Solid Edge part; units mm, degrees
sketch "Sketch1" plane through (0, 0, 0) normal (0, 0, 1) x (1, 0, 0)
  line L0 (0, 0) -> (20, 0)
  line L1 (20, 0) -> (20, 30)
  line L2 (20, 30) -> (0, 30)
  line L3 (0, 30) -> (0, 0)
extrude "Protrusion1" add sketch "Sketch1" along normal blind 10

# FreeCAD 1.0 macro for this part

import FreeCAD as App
import Part
import Sketcher
Q = App.Units.Quantity

doc = App.newDocument("Part")
body = doc.addObject("PartDesign::Body", "Body")

sketch1 = body.newObject("Sketcher::SketchObject", "Sketch")
sketch1.AttachmentSupport = (doc.getObject("XY_Plane"), [""])
sketch1.MapMode = "FlatFace"
sketch1.addGeometry([
    Part.LineSegment(App.Vector(0, 30, 0), App.Vector(0, 0, 0)),
    Part.LineSegment(App.Vector(0, 0, 0), App.Vector(20, 0, 0)),
    Part.LineSegment(App.Vector(20, 0, 0), App.Vector(20, 30, 0)),
    Part.LineSegment(App.Vector(20, 30, 0), App.Vector(0, 30, 0)),
], False)
sketch1.addConstraint([
    Sketcher.Constraint("Coincident", 0, 2, 1, 1),
    Sketcher.Constraint("Coincident", 1, 2, 2, 1),
    Sketcher.Constraint("Coincident", 2, 2, 3, 1),
    Sketcher.Constraint("Coincident", 3, 2, 0, 1),
    Sketcher.Constraint("Vertical", 0),
    Sketcher.Constraint("Horizontal", 1),
    Sketcher.Constraint("Vertical", 2),
    Sketcher.Constraint("Horizontal", 3),
    Sketcher.Constraint("Coincident", 0, 2, -1, 1),
    Sketcher.Constraint("DistanceX", 1, 1, 1, 2, Q("20 mm")),
    Sketcher.Constraint("DistanceY", 0, 2, 0, 1, Q("30 mm")),
])
pad1 = body.newObject("PartDesign::Pad", "Pad")
pad1.Profile = sketch1
pad1.Length = 10

doc.recompute()
